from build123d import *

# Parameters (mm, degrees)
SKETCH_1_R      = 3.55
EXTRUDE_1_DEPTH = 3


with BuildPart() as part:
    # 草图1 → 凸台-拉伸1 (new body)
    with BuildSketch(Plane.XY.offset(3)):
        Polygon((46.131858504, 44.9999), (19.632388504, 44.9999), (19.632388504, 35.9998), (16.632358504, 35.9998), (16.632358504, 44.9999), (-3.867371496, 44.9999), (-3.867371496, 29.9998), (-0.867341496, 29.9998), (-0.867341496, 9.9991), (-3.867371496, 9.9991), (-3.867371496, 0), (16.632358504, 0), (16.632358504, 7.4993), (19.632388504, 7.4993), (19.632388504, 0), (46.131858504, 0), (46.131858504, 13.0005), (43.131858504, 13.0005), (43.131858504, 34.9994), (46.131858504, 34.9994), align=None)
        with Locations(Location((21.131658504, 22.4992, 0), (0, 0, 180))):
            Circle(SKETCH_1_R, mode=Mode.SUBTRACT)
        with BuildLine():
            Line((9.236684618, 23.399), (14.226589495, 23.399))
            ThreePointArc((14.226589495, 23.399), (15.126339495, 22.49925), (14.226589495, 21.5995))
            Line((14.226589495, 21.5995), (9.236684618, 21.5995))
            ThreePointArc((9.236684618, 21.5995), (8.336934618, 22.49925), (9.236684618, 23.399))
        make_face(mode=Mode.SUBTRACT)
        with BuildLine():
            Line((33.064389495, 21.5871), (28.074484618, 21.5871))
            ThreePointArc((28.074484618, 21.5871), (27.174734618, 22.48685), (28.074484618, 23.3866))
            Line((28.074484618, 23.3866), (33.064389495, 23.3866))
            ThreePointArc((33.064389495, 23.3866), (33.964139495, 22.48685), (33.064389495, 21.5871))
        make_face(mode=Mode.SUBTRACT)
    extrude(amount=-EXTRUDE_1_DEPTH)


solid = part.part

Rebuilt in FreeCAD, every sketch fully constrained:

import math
import FreeCAD as App
import Part
import Sketcher
from FreeCAD import Vector


def add_polygon(sketch, points):
    """Adds a closed chain of lines whose ends are joined by coincident constraints."""
    first, n = sketch.GeometryCount, len(points)
    for a, b in zip(points, points[1:] + points[:1]):
        sketch.addGeometry(Part.LineSegment(App.Vector(*a, 0), App.Vector(*b, 0)), False)
    for i in range(n):
        sketch.addConstraint(Sketcher.Constraint("Coincident", first + i, 2, first + (i + 1) % n, 1))

doc = App.newDocument("Part")
params = doc.addObject("Spreadsheet::Sheet", "Params")
for row, (alias, value) in enumerate([
    ("sketch1_diameter", "7.1 mm"),
    ("sketch1_width", "3 mm"),
    ("pad1_length", "3 mm"),
], start=1):
    params.set(f"A{row}", alias)
    params.set(f"B{row}", "=" + value)
    params.setAlias(f"B{row}", alias)

body = doc.addObject("PartDesign::Body", "Body")

# Sketch on XY plane
sketch1 = body.newObject("Sketcher::SketchObject", "Sketch")
sketch1.AttachmentSupport = (doc.getObject("XY_Plane"), [""])
sketch1.MapMode = "FlatFace"
sketch1.AttachmentOffset = App.Placement(Vector(0, 0, 3), App.Rotation())
add_polygon(sketch1, [(46.1, 45), (19.6, 45), (19.6, 36), (16.6, 36), (16.6, 45), (-3.9, 45), (-3.9, 30), (-0.9, 30), (-0.9, 10), (-3.9, 10), (-3.9, 0), (16.6, 0), (16.6, 7.5), (19.6, 7.5), (19.6, 0), (46.1, 0), (46.1, 13), (43.1, 13), (43.1, 35), (46.1, 35)])  # lines 0-19
sketch1.addGeometry(Part.ArcOfCircle(Part.Circle(Vector(33.1, 22.5, 0), Vector(0, 0, 1), 0.9), math.radians(-90), math.radians(90)), False)  # 20
sketch1.addGeometry(Part.LineSegment(Vector(33.1, 21.6, 0), Vector(28.1, 21.6, 0)), False)  # 21
sketch1.addGeometry(Part.ArcOfCircle(Part.Circle(Vector(28.1, 22.5, 0), Vector(0, 0, 1), 0.9), math.radians(90), math.radians(270)), False)  # 22
sketch1.addGeometry(Part.LineSegment(Vector(28.1, 23.4, 0), Vector(33.1, 23.4, 0)), False)  # 23
sketch1.addGeometry(Part.ArcOfCircle(Part.Circle(Vector(9.2, 22.5, 0), Vector(0, 0, 1), 0.9), math.radians(90), math.radians(270)), False)  # 24
sketch1.addGeometry(Part.LineSegment(Vector(9.2, 23.4, 0), Vector(14.2, 23.4, 0)), False)  # 25
sketch1.addGeometry(Part.ArcOfCircle(Part.Circle(Vector(14.2, 22.5, 0), Vector(0, 0, 1), 0.9), math.radians(-90), math.radians(90)), False)  # 26
sketch1.addGeometry(Part.LineSegment(Vector(14.2, 21.6, 0), Vector(9.2, 21.6, 0)), False)  # 27
sketch1.addGeometry(Part.Circle(Vector(21.1, 22.5, 0), Vector(0, 0, 1), 3.5), False)  # 28
sketch1.addConstraint([
    Sketcher.Constraint("Tangent", 20, 1, 21, 1),
    Sketcher.Constraint("Tangent", 21, 2, 22, 2),
    Sketcher.Constraint("Tangent", 22, 1, 23, 1),
    Sketcher.Constraint("Tangent", 23, 2, 20, 2),
    Sketcher.Constraint("Tangent", 24, 1, 25, 1),
    Sketcher.Constraint("Tangent", 25, 2, 26, 2),
    Sketcher.Constraint("Tangent", 26, 1, 27, 1),
    Sketcher.Constraint("Tangent", 27, 2, 24, 2),
    Sketcher.Constraint("Horizontal", 0),
    Sketcher.Constraint("Vertical", 1),
    Sketcher.Constraint("Horizontal", 2),
    Sketcher.Constraint("Vertical", 3),
    Sketcher.Constraint("Horizontal", 4),
    Sketcher.Constraint("Vertical", 5),
    Sketcher.Constraint("Horizontal", 6),
    Sketcher.Constraint("Vertical", 7),
    Sketcher.Constraint("Horizontal", 8),
    Sketcher.Constraint("Vertical", 9),
    Sketcher.Constraint("Horizontal", 10),
    Sketcher.Constraint("Vertical", 11),
    Sketcher.Constraint("Horizontal", 12),
    Sketcher.Constraint("Vertical", 13),
    Sketcher.Constraint("Horizontal", 14),
    Sketcher.Constraint("Vertical", 15),
    Sketcher.Constraint("Horizontal", 16),
    Sketcher.Constraint("Vertical", 17),
    Sketcher.Constraint("Horizontal", 18),
    Sketcher.Constraint("Vertical", 19),
    Sketcher.Constraint("Horizontal", 21),
    Sketcher.Constraint("Horizontal", 23),
    Sketcher.Constraint("Horizontal", 25),
    Sketcher.Constraint("Horizontal", 27),
    Sketcher.Constraint("Equal", 22, 24),
    Sketcher.Constraint("PointOnObject", 9, 2, -1),
    Sketcher.Constraint("PointOnObject", 13, 2, -1),
    Sketcher.Constraint("Horizontal", 0, 2, 3, 2),
    Sketcher.Constraint("Vertical", 5, 2, 8, 2),
    Sketcher.Constraint("Vertical", 3, 2, 10, 2),
    Sketcher.Constraint("Vertical", 1, 2, 12, 2),
    Sketcher.Constraint("Vertical", 15, 2, 18, 2),
    Sketcher.Constraint("Equal", 2, 6),
    Sketcher.Constraint("Equal", 23, 25),
    Sketcher.Constraint("Diameter", 28, 7.1),
    Sketcher.Constraint("DistanceX", 16, 2, 16, 1, 3.0),
    Sketcher.Constraint("DistanceY", 5, 2, 2, 2, 6.0),
    Sketcher.Constraint("Radius", 20, 0.89975),
    Sketcher.Constraint("DistanceY", 1, 2, 1, 1, 9.0001),
    Sketcher.Constraint("DistanceY", 7, 2, 7, 1, 20.0007),
    Sketcher.Constraint("DistanceY", 9, 2, 9, 1, 9.9991),
    Sketcher.Constraint("DistanceY", 11, 1, 11, 2, 7.4993),
    Sketcher.Constraint("DistanceY", 15, 1, 15, 2, 13.0005),
    Sketcher.Constraint("DistanceY", 17, 1, 17, 2, 21.9989),
    Sketcher.Constraint("DistanceY", -1, 1, 24, 1, 23.399),
    Sketcher.Constraint("DistanceX", 0, 2, 20, 3, 13.432001),
    Sketcher.Constraint("DistanceX", 7, 2, 28, 3, 21.999),
    Sketcher.Constraint("DistanceX", 0, 2, 0, 1, 26.49947),
    Sketcher.Constraint("DistanceX", 2, 2, 2, 1, 3.00003),
    Sketcher.Constraint("DistanceX", 4, 2, 4, 1, 20.49973),
    Sketcher.Constraint("DistanceY", -1, 1, 28, 3, 22.4992),
    Sketcher.Constraint("DistanceY", -1, 1, 20, 1, 21.5871),
    Sketcher.Constraint("DistanceX", 24, 3, 22, 3, 18.8378),
    Sketcher.Constraint("DistanceX", 21, 2, 21, 1, 4.989905),
    Sketcher.Constraint("DistanceX", -1, 1, 20, 3, 33.064389),
])
sketch1.setExpression("Constraints[62]", "Params.sketch1_diameter")
sketch1.setExpression("Constraints[63]", "Params.sketch1_width")
pad1 = body.newObject("PartDesign::Pad", "Pad")
pad1.Profile = sketch1
pad1.setExpression("Length", "Params.pad1_length")
pad1.Reversed = True

doc.recompute()
